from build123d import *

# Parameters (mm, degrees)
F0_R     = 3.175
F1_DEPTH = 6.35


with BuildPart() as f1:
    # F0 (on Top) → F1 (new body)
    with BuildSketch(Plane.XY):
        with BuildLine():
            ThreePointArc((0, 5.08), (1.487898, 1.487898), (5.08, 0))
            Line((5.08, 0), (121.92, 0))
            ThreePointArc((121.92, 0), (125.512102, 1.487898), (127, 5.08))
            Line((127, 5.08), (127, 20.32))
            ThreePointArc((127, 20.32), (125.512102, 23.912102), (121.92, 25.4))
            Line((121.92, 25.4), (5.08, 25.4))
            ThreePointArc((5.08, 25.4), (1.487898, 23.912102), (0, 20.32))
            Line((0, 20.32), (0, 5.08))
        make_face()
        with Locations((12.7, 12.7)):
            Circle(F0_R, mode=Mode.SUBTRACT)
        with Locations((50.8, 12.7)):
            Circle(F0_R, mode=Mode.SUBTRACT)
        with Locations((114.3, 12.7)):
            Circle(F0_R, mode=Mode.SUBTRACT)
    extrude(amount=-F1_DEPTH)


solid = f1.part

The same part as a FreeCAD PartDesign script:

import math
import FreeCAD as App
import Part
import Sketcher
from FreeCAD import Vector
Q = App.Units.Quantity

doc = App.newDocument("Part")
body = doc.addObject("PartDesign::Body", "Body")

# Sketch on XY plane
sketch1 = body.newObject("Sketcher::SketchObject", "Sketch")
sketch1.AttachmentSupport = (doc.getObject("XY_Plane"), [""])
sketch1.MapMode = "FlatFace"
sketch1.addGeometry([
    Part.ArcOfCircle(Part.Circle(Vector(5.1, 5.1, 0), Vector(0, 0, 1), 5.1), math.radians(-180), math.radians(-90)),  # 0
    Part.LineSegment(Vector(5.1, 0, 0), Vector(121.9, 0, 0)),  # 1
    Part.ArcOfCircle(Part.Circle(Vector(121.9, 5.1, 0), Vector(0, 0, 1), 5.1), math.radians(-90), math.radians(0)),  # 2
    Part.LineSegment(Vector(127, 5.1, 0), Vector(127, 20.3, 0)),  # 3
    Part.ArcOfCircle(Part.Circle(Vector(121.9, 20.3, 0), Vector(0, 0, 1), 5.1), math.radians(0), math.radians(90)),  # 4
    Part.LineSegment(Vector(121.9, 25.4, 0), Vector(5.1, 25.4, 0)),  # 5
    Part.ArcOfCircle(Part.Circle(Vector(5.1, 20.3, 0), Vector(0, 0, 1), 5.1), math.radians(90), math.radians(180)),  # 6
    Part.LineSegment(Vector(0, 20.3, 0), Vector(0, 5.1, 0)),  # 7
    Part.Circle(Vector(12.7, 12.7, 0), Vector(0, 0, 1), 3.2),  # 8
    Part.Circle(Vector(50.8, 12.7, 0), Vector(0, 0, 1), 3.2),  # 9
    Part.Circle(Vector(114.3, 12.7, 0), Vector(0, 0, 1), 3.2),  # 10
], False)
sketch1.addConstraint([
    Sketcher.Constraint("Tangent", 0, 2, 1, 1),
    Sketcher.Constraint("Tangent", 1, 2, 2, 1),
    Sketcher.Constraint("Tangent", 2, 2, 3, 1),
    Sketcher.Constraint("Tangent", 3, 2, 4, 1),
    Sketcher.Constraint("Tangent", 4, 2, 5, 1),
    Sketcher.Constraint("Tangent", 5, 2, 6, 1),
    Sketcher.Constraint("Tangent", 6, 2, 7, 1),
    Sketcher.Constraint("Tangent", 7, 2, 0, 1),
    Sketcher.Constraint("Horizontal", 1),
    Sketcher.Constraint("Vertical", 3),
    Sketcher.Constraint("Horizontal", 5),
    Sketcher.Constraint("Vertical", 7),
    Sketcher.Constraint("Equal", 0, 2),
    Sketcher.Constraint("Equal", 2, 4),
    Sketcher.Constraint("Equal", 4, 6),
    Sketcher.Constraint("Equal", 8, 9),
    Sketcher.Constraint("Equal", 9, 10),
    Sketcher.Constraint("PointOnObject", 0, 2, -1),
    Sketcher.Constraint("PointOnObject", 6, 2, -2),
    Sketcher.Constraint("Horizontal", 8, 3, 9, 3),
    Sketcher.Constraint("Horizontal", 9, 3, 10, 3),
    Sketcher.Constraint("Radius", 0, Q("0.2000001 in")),
    Sketcher.Constraint("Diameter", 8, Q("0.25 in")),
    Sketcher.Constraint("DistanceX", 1, 1, 1, 2, Q("4.6 in")),
    Sketcher.Constraint("DistanceY", 3, 1, 3, 2, Q("0.6 in")),
    Sketcher.Constraint("DistanceX", -1, 1, 9, 3, Q("2 in")),
    Sketcher.Constraint("DistanceX", 8, 3, 10, 3, Q("4 in")),
    Sketcher.Constraint("DistanceX", -1, 1, 8, 3, Q("0.5 in")),
    Sketcher.Constraint("DistanceY", -1, 1, 8, 3, Q("0.5 in")),
])
pad1 = body.newObject("PartDesign::Pad", "Pad")
pad1.Profile = sketch1
pad1.Length = Q("0.25 in")
pad1.Reversed = True

doc.recompute()
